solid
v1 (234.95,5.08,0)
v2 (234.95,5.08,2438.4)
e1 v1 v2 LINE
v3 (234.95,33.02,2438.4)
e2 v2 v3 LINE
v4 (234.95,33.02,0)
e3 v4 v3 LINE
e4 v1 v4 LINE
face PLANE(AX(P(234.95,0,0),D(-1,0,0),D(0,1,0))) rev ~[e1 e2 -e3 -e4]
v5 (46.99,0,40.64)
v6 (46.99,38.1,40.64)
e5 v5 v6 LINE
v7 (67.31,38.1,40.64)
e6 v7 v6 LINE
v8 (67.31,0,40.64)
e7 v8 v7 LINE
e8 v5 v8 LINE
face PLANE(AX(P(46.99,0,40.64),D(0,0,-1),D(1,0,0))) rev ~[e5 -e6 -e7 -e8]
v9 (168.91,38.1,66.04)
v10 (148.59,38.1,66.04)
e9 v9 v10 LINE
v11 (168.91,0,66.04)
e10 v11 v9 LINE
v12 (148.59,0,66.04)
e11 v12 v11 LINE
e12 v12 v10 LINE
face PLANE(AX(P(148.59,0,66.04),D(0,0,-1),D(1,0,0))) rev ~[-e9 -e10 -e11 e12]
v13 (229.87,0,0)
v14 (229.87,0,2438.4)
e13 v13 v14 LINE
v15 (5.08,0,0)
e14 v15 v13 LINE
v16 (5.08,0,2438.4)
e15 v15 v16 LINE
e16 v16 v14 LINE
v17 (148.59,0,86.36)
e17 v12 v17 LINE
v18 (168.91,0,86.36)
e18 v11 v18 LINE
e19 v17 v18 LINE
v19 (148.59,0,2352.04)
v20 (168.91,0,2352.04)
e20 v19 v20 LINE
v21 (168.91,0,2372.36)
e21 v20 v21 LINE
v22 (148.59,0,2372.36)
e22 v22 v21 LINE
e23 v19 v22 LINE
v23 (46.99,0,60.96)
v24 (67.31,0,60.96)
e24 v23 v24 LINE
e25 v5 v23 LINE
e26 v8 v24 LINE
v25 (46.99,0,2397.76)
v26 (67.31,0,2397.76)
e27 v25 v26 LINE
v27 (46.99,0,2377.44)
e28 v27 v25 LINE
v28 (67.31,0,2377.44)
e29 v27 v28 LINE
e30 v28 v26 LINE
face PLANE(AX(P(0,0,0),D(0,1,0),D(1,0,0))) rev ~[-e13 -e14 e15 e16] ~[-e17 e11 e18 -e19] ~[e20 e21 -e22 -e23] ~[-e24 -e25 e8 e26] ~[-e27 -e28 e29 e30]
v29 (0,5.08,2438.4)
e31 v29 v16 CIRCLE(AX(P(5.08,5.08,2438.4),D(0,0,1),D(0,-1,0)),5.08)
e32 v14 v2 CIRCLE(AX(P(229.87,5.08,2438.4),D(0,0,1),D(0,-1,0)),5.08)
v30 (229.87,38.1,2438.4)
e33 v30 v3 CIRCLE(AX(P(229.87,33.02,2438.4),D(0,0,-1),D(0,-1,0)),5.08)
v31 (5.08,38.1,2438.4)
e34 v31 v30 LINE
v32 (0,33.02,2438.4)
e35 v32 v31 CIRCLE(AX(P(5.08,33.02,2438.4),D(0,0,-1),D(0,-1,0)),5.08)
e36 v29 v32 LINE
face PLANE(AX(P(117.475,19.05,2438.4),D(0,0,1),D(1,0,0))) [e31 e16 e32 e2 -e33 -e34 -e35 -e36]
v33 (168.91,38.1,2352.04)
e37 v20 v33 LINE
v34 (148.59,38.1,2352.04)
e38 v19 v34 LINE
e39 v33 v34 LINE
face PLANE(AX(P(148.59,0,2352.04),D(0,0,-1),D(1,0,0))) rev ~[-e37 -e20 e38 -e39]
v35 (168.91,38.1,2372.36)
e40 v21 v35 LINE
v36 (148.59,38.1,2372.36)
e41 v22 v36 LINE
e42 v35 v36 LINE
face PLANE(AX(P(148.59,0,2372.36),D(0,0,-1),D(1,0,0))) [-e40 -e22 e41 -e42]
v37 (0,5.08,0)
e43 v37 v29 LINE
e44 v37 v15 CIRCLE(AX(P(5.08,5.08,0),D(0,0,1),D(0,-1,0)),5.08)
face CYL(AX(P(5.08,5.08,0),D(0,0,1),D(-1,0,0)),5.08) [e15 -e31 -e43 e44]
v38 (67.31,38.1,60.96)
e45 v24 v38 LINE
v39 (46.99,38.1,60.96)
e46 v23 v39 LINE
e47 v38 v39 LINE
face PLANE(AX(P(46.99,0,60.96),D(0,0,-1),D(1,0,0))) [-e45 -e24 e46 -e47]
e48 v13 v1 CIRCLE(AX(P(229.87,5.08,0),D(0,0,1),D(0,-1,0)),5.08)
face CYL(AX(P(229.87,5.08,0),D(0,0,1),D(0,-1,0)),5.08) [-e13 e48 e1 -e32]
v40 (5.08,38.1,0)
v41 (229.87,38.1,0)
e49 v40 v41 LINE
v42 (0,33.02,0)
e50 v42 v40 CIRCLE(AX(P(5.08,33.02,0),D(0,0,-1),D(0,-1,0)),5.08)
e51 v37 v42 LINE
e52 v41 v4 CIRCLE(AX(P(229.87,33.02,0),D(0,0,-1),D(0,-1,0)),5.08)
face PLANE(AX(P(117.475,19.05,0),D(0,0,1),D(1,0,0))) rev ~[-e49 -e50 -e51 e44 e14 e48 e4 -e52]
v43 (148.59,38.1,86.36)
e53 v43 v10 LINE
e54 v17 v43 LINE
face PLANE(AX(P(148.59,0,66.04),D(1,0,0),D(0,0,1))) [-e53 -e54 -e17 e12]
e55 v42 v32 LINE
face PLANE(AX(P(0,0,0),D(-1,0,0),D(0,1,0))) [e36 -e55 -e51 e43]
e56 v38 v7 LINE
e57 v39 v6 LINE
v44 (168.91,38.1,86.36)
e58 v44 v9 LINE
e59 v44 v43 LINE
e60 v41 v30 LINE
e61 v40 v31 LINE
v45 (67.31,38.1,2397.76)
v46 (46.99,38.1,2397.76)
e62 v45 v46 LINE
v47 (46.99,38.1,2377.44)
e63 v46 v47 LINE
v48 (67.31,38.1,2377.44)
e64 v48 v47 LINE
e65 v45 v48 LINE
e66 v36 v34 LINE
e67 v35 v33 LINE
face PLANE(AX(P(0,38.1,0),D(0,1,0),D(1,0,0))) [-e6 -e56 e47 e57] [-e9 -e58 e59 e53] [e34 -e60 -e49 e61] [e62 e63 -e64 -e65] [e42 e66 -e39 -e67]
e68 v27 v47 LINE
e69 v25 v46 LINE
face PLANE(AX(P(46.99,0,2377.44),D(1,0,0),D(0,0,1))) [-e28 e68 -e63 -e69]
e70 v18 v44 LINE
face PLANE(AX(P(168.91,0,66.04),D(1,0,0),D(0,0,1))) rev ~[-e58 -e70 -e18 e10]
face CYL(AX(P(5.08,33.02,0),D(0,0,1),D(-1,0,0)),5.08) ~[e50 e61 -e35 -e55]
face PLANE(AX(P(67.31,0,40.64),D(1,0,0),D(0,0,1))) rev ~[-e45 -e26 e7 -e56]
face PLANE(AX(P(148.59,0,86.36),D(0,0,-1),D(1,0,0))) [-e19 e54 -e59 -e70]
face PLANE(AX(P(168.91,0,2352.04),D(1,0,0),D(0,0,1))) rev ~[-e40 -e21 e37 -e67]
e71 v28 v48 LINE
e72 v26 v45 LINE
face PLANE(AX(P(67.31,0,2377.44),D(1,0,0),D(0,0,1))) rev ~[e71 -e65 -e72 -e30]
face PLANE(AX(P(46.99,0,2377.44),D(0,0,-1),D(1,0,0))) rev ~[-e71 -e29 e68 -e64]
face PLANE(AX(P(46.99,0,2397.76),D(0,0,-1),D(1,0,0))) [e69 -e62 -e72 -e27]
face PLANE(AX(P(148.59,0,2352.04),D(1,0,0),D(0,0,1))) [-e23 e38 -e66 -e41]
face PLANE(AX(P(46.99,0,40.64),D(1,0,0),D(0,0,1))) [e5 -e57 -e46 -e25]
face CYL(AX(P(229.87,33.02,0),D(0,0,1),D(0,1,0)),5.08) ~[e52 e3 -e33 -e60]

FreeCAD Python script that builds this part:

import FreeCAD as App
import Part
import Sketcher
Q = App.Units.Quantity


def edges_at(feature, points):
    """Names of the edges that pass closest to the given points."""
    edges = feature.Shape.Edges
    near = lambda p: min(range(len(edges)), key=lambda i: edges[i].distToShape(Part.Vertex(*p))[0])
    return sorted({f"Edge{near(p) + 1}" for p in points})

doc = App.newDocument("Part")
body = doc.addObject("PartDesign::Body", "Body")

# Sketch on XY plane
sketch1 = doc.addObject("Sketcher::SketchObject", "Sketch")
body.addObject(sketch1)
sketch1.AttachmentSupport = (doc.XY_Plane, [""])
sketch1.MapMode = "FlatFace"
sketch1.addGeometry([
    Part.LineSegment(App.Vector(0, 38.1, 0), App.Vector(0, 0, 0)),
    Part.LineSegment(App.Vector(0, 0, 0), App.Vector(234.95, 0, 0)),
    Part.LineSegment(App.Vector(234.95, 0, 0), App.Vector(234.95, 38.1, 0)),
    Part.LineSegment(App.Vector(234.95, 38.1, 0), App.Vector(0, 38.1, 0)),
], False)
sketch1.addConstraint([
    Sketcher.Constraint("Coincident", 0, 2, 1, 1),
    Sketcher.Constraint("Coincident", 1, 2, 2, 1),
    Sketcher.Constraint("Coincident", 2, 2, 3, 1),
    Sketcher.Constraint("Coincident", 3, 2, 0, 1),
    Sketcher.Constraint("Vertical", 0),
    Sketcher.Constraint("Horizontal", 1),
    Sketcher.Constraint("Vertical", 2),
    Sketcher.Constraint("Horizontal", 3),
    Sketcher.Constraint("Coincident", 0, 2, -1, 1),
    Sketcher.Constraint("DistanceY", 0, 2, 0, 1, Q("1.5 in")),
    Sketcher.Constraint("DistanceX", 1, 1, 1, 2, Q("9.25 in")),
])
pad1 = doc.addObject("PartDesign::Pad", "Pad")
body.addObject(pad1)
pad1.Profile = sketch1
pad1.Length = Q("96 in")

# Sketch on XZ plane
sketch2 = doc.addObject("Sketcher::SketchObject", "Sketch001")
body.addObject(sketch2)
sketch2.AttachmentSupport = (doc.XZ_Plane, [""])
sketch2.MapMode = "FlatFace"
sketch2.addGeometry([
    Part.LineSegment(App.Vector(46.99, 2397.76, 0), App.Vector(46.99, 2377.44, 0)),  # 0
    Part.LineSegment(App.Vector(46.99, 2377.44, 0), App.Vector(67.31, 2377.44, 0)),  # 1
    Part.LineSegment(App.Vector(67.31, 2377.44, 0), App.Vector(67.31, 2397.76, 0)),  # 2
    Part.LineSegment(App.Vector(67.31, 2397.76, 0), App.Vector(46.99, 2397.76, 0)),  # 3
    Part.LineSegment(App.Vector(148.59, 2372.36, 0), App.Vector(148.59, 2352.04, 0)),  # 4
    Part.LineSegment(App.Vector(148.59, 2352.04, 0), App.Vector(168.91, 2352.04, 0)),  # 5
    Part.LineSegment(App.Vector(168.91, 2352.04, 0), App.Vector(168.91, 2372.36, 0)),  # 6
    Part.LineSegment(App.Vector(168.91, 2372.36, 0), App.Vector(148.59, 2372.36, 0)),  # 7
    Part.LineSegment(App.Vector(148.59, 86.36, 0), App.Vector(148.59, 66.04, 0)),  # 8
    Part.LineSegment(App.Vector(148.59, 66.04, 0), App.Vector(168.91, 66.04, 0)),  # 9
    Part.LineSegment(App.Vector(168.91, 66.04, 0), App.Vector(168.91, 86.36, 0)),  # 10
    Part.LineSegment(App.Vector(168.91, 86.36, 0), App.Vector(148.59, 86.36, 0)),  # 11
    Part.LineSegment(App.Vector(46.99, 60.96, 0), App.Vector(46.99, 40.64, 0)),  # 12
    Part.LineSegment(App.Vector(46.99, 40.64, 0), App.Vector(67.31, 40.64, 0)),  # 13
    Part.LineSegment(App.Vector(67.31, 40.64, 0), App.Vector(67.31, 60.96, 0)),  # 14
    Part.LineSegment(App.Vector(67.31, 60.96, 0), App.Vector(46.99, 60.96, 0)),  # 15
], False)
sketch2.addConstraint([
    Sketcher.Constraint("Coincident", 0, 2, 1, 1),
    Sketcher.Constraint("Coincident", 1, 2, 2, 1),
    Sketcher.Constraint("Coincident", 2, 2, 3, 1),
    Sketcher.Constraint("Coincident", 3, 2, 0, 1),
    Sketcher.Constraint("Coincident", 4, 2, 5, 1),
    Sketcher.Constraint("Coincident", 5, 2, 6, 1),
    Sketcher.Constraint("Coincident", 6, 2, 7, 1),
    Sketcher.Constraint("Coincident", 7, 2, 4, 1),
    Sketcher.Constraint("Coincident", 8, 2, 9, 1),
    Sketcher.Constraint("Coincident", 9, 2, 10, 1),
    Sketcher.Constraint("Coincident", 10, 2, 11, 1),
    Sketcher.Constraint("Coincident", 11, 2, 8, 1),
    Sketcher.Constraint("Coincident", 12, 2, 13, 1),
    Sketcher.Constraint("Coincident", 13, 2, 14, 1),
    Sketcher.Constraint("Coincident", 14, 2, 15, 1),
    Sketcher.Constraint("Coincident", 15, 2, 12, 1),
    Sketcher.Constraint("Vertical", 0),
    Sketcher.Constraint("Horizontal", 1),
    Sketcher.Constraint("Vertical", 2),
    Sketcher.Constraint("Horizontal", 3),
    Sketcher.Constraint("Vertical", 4),
    Sketcher.Constraint("Horizontal", 5),
    Sketcher.Constraint("Vertical", 6),
    Sketcher.Constraint("Horizontal", 7),
    Sketcher.Constraint("Vertical", 8),
    Sketcher.Constraint("Horizontal", 9),
    Sketcher.Constraint("Vertical", 10),
    Sketcher.Constraint("Horizontal", 11),
    Sketcher.Constraint("Vertical", 12),
    Sketcher.Constraint("Horizontal", 13),
    Sketcher.Constraint("Vertical", 14),
    Sketcher.Constraint("Horizontal", 15),
    Sketcher.Constraint("Vertical", 7, 2, 8, 2),
    Sketcher.Constraint("Vertical", 6, 2, 9, 2),
    Sketcher.Constraint("Vertical", 3, 2, 12, 2),
    Sketcher.Constraint("Vertical", 2, 2, 13, 2),
    Sketcher.Constraint("Equal", 3, 5),
    Sketcher.Constraint("Equal", 15, 0),
    Sketcher.Constraint("Equal", 2, 4),
    Sketcher.Constraint("Equal", 6, 8),
    Sketcher.Constraint("Equal", 10, 12),
    Sketcher.Constraint("DistanceX", 1, 1, 1, 2, Q("0.8 in")),
    Sketcher.Constraint("DistanceY", 4, 2, 1, 2, Q("1 in")),
    Sketcher.Constraint("DistanceX", 0, 2, 4, 2, Q("4 in")),
    Sketcher.Constraint("DistanceY", 8, 2, 4, 2, Q("90 in")),
    Sketcher.Constraint("DistanceY", 12, 2, 8, 2, Q("1 in")),
    Sketcher.Constraint("DistanceY", -1, 1, 0, 2, Q("93.6 in")),
    Sketcher.Constraint("DistanceX", -1, 1, 0, 2, Q("1.85 in")),
])
pocket1 = doc.addObject("PartDesign::Pocket", "Pocket")
body.addObject(pocket1)
pocket1.Profile = sketch2
pocket1.Length = Q("2 in")
doc.recompute()

fillet = doc.addObject("PartDesign::Fillet", "Fillet")
body.addObject(fillet)
fillet.Base = (pocket1, edges_at(pocket1, [
    (0, 0, 1219.2),
    (234.95, 0, 1219.2),
    (0, 38.1, 1219.2),
    (234.95, 38.1, 1219.2),
]))
fillet.Radius = Q("0.2 in")

doc.recompute()
